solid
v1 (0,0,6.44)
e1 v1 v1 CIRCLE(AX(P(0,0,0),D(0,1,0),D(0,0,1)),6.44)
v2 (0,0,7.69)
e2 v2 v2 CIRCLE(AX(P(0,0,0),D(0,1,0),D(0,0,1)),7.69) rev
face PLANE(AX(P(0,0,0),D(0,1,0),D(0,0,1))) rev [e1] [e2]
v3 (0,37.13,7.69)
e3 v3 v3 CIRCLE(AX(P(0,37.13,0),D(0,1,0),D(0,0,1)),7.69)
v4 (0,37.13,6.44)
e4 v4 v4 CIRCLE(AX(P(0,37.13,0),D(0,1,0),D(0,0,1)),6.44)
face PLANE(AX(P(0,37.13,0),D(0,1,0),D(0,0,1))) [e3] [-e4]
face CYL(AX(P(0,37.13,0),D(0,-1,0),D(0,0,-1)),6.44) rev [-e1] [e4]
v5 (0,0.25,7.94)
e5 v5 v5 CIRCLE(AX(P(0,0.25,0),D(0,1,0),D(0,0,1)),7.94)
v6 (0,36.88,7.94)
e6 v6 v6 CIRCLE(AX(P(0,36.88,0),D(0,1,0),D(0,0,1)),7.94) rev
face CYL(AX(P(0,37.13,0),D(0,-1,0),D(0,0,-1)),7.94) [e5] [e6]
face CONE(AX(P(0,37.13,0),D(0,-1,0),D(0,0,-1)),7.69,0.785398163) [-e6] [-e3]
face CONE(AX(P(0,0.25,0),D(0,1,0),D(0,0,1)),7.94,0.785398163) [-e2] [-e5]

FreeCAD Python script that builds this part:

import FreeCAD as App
import Part
import Sketcher
from FreeCAD import Vector
Q = App.Units.Quantity


def edges_at(feature, points):
    """Names of the edges that pass closest to the given points."""
    edges = feature.Shape.Edges
    near = lambda p: min(range(len(edges)), key=lambda i: edges[i].distToShape(Part.Vertex(*p))[0])
    return sorted({f"Edge{near(p) + 1}" for p in points})

doc = App.newDocument("Part")
body = doc.addObject("PartDesign::Body", "Body")

sketch1 = body.newObject("Sketcher::SketchObject", "Sketch")
sketch1.AttachmentSupport = (doc.getObject("XZ_Plane"), [""])
sketch1.MapMode = "FlatFace"
sketch1.addGeometry(Part.Circle(Vector(0, 0, 0), Vector(0, 0, 1), 7.94), False)
sketch1.addGeometry(Part.Circle(Vector(0, 0, 0), Vector(0, 0, 1), 6.44), False)
sketch1.addConstraint(Sketcher.Constraint("Coincident", 0, 3, -1, 1))
sketch1.addConstraint(Sketcher.Constraint("Coincident", 1, 3, -1, 1))
sketch1.addConstraint(Sketcher.Constraint("Diameter", 0, Q("15.88 mm")))
sketch1.addConstraint(Sketcher.Constraint("Diameter", 1, Q("12.88 mm")))
pad1 = body.newObject("PartDesign::Pad", "Pad")
pad1.Profile = sketch1
pad1.Length = 37.13
pad1.Reversed = True
doc.recompute()

chamfer = body.newObject("PartDesign::Chamfer", "Chamfer")
chamfer.Base = (pad1, edges_at(pad1, [(-7.94, 0, 0), (-7.94, 37.13, 0)]))
chamfer.Size = 0.25

doc.recompute()
